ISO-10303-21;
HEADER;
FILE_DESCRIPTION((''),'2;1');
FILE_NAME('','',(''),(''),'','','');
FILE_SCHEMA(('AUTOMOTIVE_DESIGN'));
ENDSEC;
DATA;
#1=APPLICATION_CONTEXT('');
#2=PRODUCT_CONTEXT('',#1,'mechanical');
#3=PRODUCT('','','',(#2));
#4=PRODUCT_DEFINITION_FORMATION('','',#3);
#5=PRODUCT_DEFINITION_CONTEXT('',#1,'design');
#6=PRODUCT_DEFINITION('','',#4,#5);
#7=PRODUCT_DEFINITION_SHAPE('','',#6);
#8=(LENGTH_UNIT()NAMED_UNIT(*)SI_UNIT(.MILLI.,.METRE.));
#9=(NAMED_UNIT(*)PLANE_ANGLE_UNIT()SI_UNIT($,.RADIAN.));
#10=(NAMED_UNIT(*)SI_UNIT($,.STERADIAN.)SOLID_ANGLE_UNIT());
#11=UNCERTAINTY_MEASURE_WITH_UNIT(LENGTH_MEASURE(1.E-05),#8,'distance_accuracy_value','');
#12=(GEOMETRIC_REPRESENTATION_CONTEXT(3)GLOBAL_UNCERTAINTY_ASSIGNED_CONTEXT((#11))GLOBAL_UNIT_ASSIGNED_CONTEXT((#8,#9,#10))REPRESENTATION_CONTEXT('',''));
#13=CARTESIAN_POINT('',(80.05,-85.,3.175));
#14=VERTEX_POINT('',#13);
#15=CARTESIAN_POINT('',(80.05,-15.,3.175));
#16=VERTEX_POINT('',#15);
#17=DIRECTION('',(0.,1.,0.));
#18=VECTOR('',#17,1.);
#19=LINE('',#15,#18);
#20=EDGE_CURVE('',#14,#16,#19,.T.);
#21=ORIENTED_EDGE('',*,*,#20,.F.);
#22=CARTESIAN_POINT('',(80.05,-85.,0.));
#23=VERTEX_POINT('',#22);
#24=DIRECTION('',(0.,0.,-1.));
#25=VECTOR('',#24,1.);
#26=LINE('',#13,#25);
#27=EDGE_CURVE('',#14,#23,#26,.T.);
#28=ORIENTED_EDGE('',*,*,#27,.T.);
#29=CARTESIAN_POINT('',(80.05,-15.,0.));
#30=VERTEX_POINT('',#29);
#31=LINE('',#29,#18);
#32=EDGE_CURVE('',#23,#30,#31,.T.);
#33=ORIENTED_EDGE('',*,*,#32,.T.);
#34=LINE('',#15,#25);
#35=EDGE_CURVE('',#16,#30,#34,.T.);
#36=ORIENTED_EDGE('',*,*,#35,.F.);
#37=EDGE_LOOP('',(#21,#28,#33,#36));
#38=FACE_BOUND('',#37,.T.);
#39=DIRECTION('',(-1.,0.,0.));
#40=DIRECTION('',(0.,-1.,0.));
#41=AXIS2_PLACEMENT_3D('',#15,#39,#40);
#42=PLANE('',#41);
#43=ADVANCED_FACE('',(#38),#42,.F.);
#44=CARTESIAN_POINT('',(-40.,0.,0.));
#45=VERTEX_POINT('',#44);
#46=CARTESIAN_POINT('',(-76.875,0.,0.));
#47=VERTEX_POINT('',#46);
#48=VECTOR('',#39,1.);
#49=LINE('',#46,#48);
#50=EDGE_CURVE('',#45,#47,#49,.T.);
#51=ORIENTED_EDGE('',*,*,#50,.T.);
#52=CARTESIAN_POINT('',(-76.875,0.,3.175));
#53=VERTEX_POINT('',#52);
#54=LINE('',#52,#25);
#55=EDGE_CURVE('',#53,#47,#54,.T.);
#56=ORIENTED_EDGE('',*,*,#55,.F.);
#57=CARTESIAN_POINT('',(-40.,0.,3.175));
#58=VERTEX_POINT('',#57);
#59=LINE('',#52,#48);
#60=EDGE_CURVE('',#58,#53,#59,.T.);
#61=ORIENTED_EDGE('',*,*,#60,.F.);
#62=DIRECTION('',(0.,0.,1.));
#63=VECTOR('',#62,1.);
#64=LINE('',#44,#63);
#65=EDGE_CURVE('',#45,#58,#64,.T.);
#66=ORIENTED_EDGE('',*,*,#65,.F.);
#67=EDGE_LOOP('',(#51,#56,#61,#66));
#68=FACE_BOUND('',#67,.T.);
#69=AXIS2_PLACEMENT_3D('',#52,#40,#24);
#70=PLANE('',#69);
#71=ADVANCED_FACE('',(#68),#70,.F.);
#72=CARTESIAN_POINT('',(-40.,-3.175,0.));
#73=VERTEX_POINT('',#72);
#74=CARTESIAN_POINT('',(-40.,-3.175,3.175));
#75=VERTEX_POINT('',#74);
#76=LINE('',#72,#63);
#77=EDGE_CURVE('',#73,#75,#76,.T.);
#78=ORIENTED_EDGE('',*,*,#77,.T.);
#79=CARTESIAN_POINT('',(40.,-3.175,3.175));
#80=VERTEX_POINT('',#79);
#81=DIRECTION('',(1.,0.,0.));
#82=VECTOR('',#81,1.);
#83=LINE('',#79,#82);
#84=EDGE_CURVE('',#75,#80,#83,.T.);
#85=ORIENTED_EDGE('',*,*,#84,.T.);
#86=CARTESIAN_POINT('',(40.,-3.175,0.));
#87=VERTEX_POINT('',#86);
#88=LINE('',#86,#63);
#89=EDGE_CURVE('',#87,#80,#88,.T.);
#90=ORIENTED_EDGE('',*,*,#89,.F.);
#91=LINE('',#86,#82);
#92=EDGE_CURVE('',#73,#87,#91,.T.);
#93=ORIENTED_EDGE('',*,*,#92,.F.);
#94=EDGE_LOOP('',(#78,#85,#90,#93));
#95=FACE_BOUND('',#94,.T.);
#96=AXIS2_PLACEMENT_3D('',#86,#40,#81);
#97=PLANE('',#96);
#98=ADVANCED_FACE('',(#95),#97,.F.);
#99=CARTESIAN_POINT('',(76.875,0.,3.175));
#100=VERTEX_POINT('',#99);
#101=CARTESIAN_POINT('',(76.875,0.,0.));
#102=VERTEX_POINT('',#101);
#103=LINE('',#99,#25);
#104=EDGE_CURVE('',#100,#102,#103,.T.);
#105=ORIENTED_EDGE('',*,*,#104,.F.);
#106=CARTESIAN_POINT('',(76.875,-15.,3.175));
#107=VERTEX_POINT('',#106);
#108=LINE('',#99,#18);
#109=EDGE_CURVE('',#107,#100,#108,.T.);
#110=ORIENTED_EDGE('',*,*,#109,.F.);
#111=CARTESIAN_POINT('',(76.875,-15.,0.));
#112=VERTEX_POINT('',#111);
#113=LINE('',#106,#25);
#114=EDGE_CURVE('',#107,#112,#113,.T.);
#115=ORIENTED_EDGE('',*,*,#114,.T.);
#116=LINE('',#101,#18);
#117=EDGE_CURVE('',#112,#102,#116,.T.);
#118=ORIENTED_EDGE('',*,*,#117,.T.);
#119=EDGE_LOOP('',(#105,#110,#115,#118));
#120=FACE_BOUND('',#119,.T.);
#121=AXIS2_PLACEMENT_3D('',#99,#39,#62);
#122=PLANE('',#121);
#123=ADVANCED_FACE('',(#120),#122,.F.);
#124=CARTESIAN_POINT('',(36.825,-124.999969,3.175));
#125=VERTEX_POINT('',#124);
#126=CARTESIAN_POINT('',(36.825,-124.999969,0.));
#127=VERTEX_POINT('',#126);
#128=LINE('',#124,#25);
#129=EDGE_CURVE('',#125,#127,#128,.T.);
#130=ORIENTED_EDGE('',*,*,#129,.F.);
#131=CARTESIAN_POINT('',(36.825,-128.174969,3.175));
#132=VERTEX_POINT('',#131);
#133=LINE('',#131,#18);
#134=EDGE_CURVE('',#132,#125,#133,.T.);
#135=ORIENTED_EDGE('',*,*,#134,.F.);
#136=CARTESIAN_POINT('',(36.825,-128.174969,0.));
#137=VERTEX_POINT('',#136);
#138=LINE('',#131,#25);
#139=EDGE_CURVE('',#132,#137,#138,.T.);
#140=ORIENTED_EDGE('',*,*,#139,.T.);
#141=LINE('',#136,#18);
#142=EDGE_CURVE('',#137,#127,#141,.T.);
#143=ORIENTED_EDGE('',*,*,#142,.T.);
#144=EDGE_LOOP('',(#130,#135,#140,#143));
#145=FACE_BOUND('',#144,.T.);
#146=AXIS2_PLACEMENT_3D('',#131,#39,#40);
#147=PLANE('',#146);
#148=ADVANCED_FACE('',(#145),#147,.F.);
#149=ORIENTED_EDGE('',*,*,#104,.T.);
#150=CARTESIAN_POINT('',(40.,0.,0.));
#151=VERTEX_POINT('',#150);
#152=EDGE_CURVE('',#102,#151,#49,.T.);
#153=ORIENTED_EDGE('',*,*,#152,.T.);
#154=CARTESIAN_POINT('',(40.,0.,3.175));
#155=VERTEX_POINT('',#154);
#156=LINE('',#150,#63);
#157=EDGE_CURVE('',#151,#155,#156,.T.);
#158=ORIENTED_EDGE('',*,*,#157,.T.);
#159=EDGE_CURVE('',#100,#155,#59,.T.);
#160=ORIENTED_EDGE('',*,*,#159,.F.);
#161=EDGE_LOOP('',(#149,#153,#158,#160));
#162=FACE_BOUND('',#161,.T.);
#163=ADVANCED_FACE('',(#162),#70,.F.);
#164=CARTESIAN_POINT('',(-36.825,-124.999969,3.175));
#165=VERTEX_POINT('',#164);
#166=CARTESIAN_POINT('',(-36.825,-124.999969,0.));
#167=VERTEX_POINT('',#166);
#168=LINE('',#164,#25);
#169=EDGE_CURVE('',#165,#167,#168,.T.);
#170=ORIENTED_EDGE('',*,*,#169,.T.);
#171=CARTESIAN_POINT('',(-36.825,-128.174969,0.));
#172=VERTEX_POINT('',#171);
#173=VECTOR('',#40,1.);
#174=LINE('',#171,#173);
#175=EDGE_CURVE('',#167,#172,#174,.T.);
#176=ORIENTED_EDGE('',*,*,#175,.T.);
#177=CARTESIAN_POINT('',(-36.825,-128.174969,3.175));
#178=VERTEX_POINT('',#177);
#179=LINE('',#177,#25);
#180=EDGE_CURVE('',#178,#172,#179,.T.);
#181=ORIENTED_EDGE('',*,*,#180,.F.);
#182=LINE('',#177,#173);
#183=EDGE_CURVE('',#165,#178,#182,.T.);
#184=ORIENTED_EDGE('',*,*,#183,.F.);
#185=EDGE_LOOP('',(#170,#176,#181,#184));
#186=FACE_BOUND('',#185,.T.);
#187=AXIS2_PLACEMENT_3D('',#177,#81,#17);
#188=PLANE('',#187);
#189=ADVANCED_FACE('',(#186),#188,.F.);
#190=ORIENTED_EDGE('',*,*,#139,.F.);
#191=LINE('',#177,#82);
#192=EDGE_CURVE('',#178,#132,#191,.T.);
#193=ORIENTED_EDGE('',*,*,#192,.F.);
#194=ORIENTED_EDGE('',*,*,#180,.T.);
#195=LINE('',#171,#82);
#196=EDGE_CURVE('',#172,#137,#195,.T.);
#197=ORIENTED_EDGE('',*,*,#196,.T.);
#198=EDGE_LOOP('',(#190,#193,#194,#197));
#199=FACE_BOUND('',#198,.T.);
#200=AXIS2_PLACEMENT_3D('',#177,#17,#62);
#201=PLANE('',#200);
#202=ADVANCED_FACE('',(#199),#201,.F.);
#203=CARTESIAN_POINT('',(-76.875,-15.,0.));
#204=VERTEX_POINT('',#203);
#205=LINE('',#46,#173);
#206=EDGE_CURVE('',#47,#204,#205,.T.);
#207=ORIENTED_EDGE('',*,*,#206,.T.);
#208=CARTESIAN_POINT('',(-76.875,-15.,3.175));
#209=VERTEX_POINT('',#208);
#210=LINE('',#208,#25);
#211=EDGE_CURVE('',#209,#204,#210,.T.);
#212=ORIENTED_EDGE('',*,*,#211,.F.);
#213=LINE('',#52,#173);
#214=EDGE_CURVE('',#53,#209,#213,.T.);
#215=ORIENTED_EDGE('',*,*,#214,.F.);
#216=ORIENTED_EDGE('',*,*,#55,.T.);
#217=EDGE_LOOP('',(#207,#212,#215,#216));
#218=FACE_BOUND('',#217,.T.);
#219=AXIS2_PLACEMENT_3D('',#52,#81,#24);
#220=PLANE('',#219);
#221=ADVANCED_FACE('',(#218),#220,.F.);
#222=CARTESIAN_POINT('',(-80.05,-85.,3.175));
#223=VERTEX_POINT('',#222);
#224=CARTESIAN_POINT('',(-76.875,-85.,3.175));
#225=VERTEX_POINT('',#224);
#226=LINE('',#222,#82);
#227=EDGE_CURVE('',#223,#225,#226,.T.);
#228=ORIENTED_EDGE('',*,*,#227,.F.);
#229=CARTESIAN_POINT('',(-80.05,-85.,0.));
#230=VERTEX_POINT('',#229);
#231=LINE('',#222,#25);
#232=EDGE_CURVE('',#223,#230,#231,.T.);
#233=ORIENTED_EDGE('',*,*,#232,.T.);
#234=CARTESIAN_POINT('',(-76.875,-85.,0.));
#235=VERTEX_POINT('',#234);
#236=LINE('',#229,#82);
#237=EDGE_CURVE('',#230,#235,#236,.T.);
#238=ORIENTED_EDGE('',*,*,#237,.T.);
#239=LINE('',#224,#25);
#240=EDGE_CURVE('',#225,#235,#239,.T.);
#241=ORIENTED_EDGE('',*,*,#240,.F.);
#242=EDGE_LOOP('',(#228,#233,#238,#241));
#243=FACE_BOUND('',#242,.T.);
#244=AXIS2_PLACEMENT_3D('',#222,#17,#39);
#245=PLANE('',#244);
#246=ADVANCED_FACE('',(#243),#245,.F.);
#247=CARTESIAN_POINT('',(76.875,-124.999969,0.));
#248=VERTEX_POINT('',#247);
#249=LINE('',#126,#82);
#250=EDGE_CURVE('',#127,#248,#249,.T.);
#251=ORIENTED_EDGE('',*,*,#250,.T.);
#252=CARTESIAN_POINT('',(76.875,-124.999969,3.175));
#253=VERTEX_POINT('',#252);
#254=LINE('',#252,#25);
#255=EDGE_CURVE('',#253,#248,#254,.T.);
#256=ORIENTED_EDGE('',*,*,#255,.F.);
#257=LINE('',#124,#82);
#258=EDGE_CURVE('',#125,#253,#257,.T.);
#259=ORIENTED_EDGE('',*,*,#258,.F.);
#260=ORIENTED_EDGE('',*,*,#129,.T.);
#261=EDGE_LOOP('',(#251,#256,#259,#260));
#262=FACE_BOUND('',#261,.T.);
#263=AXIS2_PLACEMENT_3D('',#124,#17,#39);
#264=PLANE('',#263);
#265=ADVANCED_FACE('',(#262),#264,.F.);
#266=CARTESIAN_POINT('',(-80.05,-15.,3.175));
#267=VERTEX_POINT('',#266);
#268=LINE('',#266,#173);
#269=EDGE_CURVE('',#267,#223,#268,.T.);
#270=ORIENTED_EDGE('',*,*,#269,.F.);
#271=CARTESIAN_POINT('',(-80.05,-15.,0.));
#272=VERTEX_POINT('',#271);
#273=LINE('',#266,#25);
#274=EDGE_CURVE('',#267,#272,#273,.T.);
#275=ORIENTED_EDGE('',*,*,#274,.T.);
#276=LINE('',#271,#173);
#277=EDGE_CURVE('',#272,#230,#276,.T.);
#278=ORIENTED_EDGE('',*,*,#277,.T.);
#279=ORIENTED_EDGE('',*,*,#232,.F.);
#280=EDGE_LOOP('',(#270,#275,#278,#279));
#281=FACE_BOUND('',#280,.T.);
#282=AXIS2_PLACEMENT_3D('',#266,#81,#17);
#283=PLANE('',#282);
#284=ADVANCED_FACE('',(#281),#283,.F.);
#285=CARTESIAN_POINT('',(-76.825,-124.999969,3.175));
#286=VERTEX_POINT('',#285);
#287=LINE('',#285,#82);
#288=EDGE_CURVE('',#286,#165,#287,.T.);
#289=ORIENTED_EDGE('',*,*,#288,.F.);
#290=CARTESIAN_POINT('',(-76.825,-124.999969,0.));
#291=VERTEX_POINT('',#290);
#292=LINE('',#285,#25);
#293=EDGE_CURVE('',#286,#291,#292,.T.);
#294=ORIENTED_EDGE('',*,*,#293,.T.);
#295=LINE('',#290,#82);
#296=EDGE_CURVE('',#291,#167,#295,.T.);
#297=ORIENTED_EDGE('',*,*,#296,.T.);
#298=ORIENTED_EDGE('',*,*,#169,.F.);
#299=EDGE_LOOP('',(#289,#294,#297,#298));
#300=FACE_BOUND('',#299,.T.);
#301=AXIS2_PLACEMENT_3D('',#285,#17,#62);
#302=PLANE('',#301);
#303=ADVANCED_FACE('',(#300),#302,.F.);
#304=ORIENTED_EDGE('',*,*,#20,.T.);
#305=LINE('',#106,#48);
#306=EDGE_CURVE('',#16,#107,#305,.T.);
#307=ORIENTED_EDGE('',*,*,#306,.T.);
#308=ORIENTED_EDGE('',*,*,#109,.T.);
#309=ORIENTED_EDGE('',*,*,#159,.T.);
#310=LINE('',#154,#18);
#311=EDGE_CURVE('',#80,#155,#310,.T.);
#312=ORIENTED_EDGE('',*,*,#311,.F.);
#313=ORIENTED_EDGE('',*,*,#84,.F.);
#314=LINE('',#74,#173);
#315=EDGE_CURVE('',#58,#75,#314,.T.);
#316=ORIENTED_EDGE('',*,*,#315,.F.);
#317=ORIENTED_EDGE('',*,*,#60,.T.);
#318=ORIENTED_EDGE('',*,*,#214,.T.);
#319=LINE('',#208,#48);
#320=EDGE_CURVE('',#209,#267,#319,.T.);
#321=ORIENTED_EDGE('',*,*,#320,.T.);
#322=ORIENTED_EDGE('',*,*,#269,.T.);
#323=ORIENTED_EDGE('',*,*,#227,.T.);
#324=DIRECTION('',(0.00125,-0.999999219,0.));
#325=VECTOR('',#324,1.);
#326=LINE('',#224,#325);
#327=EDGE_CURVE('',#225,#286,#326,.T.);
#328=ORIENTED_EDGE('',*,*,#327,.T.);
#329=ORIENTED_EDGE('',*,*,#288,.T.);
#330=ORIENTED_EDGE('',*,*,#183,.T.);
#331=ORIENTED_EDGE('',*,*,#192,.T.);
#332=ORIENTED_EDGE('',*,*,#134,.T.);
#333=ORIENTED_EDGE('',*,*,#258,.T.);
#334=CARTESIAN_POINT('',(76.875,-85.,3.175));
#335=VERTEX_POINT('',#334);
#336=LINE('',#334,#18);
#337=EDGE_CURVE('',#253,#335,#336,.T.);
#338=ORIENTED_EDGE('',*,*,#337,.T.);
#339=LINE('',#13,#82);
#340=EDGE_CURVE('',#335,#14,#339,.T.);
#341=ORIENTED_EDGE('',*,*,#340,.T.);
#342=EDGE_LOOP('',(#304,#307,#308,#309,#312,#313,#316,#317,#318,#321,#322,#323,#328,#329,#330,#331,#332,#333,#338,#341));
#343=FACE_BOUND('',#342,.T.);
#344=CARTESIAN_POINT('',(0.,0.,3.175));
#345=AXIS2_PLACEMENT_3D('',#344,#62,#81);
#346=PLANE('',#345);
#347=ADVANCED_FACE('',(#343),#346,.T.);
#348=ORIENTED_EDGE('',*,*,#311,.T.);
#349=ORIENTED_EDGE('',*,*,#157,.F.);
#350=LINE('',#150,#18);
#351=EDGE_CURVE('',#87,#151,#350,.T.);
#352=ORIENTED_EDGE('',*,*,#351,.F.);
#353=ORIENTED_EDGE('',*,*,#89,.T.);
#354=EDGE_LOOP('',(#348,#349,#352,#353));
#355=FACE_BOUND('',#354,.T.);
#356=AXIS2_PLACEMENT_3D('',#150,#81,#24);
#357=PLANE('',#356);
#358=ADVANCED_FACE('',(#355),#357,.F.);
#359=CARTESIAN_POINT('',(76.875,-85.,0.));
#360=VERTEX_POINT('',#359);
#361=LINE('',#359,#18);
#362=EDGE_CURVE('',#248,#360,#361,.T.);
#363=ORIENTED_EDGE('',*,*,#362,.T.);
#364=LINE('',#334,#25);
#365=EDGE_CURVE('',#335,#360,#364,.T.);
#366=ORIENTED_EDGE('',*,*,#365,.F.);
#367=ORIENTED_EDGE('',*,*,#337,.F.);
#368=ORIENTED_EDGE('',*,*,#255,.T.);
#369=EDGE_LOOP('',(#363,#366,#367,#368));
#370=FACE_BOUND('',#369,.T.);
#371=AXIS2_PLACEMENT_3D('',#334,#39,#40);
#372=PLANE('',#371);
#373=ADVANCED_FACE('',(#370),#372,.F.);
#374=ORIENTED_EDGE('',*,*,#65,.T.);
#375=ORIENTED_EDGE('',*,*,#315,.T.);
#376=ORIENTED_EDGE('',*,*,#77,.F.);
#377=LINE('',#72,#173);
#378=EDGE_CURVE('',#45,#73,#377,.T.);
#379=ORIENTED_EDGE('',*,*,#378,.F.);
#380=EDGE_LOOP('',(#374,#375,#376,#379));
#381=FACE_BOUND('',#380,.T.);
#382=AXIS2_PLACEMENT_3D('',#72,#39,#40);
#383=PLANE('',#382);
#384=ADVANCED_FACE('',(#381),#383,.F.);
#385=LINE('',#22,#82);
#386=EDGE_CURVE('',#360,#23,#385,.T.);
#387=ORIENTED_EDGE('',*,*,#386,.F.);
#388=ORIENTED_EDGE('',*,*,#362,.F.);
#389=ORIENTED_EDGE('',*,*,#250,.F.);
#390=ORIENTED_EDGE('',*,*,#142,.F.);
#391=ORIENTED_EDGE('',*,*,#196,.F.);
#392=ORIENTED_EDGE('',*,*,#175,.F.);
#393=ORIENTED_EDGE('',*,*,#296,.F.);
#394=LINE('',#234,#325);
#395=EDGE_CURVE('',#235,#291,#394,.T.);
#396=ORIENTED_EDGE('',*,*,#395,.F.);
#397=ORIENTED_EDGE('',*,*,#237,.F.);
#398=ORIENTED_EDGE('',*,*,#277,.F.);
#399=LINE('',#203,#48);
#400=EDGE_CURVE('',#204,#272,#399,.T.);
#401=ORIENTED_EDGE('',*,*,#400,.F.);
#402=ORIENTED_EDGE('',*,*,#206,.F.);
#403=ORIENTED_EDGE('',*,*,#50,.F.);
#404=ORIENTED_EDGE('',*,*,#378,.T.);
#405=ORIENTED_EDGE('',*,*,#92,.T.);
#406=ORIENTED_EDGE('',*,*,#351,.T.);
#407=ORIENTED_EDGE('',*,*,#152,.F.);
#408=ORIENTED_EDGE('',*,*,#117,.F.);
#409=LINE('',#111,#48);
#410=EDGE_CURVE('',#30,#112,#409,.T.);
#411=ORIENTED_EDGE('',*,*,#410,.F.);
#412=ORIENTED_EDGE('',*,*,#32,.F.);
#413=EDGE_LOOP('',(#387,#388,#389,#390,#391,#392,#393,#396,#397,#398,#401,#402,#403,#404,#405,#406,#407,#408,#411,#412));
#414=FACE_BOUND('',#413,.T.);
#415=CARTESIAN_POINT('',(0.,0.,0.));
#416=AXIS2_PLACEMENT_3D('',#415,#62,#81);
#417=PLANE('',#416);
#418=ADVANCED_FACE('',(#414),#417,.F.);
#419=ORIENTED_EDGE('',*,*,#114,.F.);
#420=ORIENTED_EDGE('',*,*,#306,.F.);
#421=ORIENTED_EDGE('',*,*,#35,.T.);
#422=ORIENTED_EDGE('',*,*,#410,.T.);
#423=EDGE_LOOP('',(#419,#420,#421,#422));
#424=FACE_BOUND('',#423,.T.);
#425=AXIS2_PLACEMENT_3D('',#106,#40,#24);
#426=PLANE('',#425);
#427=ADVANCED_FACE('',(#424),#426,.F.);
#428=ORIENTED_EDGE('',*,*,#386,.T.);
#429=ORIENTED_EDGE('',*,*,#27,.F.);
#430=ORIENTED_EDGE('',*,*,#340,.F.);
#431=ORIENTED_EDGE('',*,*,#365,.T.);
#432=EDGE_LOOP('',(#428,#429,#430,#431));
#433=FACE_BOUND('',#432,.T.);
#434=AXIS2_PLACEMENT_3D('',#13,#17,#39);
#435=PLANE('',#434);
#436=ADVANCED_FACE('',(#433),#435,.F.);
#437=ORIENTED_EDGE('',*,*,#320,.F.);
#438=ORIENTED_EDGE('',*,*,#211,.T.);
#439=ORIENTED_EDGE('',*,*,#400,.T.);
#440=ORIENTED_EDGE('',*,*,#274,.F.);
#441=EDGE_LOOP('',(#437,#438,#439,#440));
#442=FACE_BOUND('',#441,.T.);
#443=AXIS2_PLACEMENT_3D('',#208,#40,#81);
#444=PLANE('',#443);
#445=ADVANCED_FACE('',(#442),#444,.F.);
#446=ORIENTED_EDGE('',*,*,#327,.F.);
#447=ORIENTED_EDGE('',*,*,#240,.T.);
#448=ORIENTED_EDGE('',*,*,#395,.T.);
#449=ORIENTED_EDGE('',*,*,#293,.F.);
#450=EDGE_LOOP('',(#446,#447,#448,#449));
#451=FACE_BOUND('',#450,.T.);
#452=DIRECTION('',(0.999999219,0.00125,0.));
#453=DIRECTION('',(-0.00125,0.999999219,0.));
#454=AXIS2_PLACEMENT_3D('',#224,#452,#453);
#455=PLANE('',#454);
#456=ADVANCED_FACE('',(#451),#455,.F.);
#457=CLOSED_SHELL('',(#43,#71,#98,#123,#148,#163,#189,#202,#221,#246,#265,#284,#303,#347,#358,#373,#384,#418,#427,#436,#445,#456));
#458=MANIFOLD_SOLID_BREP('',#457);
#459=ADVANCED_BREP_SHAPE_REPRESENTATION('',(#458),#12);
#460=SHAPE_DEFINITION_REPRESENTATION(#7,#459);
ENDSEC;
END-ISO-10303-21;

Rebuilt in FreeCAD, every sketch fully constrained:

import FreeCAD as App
import Part
import Sketcher
Q = App.Units.Quantity

doc = App.newDocument("Part")
body = doc.addObject("PartDesign::Body", "Body")

sketch1 = body.newObject("Sketcher::SketchObject", "Sketch")
sketch1.AttachmentSupport = (doc.getObject("XY_Plane"), [""])
sketch1.MapMode = "FlatFace"
sketch1.addGeometry([
    Part.LineSegment(App.Vector(76.9, 0, 0), App.Vector(-76.9, 0, 0)),
    Part.LineSegment(App.Vector(-76.9, 0, 0), App.Vector(-76.9, -15, 0)),
    Part.LineSegment(App.Vector(-76.9, -15, 0), App.Vector(-80, -15, 0)),
    Part.LineSegment(App.Vector(-80, -15, 0), App.Vector(-80, -85, 0)),
    Part.LineSegment(App.Vector(-80, -85, 0), App.Vector(-76.9, -85, 0)),
    Part.LineSegment(App.Vector(-76.9, -85, 0), App.Vector(-76.8, -125, 0)),
    Part.LineSegment(App.Vector(-76.8, -125, 0), App.Vector(-36.8, -125, 0)),
    Part.LineSegment(App.Vector(-36.8, -125, 0), App.Vector(-36.8, -128.2, 0)),
    Part.LineSegment(App.Vector(-36.8, -128.2, 0), App.Vector(36.8, -128.2, 0)),
    Part.LineSegment(App.Vector(36.8, -128.2, 0), App.Vector(36.8, -125, 0)),
    Part.LineSegment(App.Vector(36.8, -125, 0), App.Vector(76.9, -125, 0)),
    Part.LineSegment(App.Vector(76.9, -125, 0), App.Vector(76.9, -85, 0)),
    Part.LineSegment(App.Vector(76.9, -85, 0), App.Vector(80, -85, 0)),
    Part.LineSegment(App.Vector(80, -85, 0), App.Vector(80, -15, 0)),
    Part.LineSegment(App.Vector(80, -15, 0), App.Vector(76.9, -15, 0)),
    Part.LineSegment(App.Vector(76.9, -15, 0), App.Vector(76.9, 0, 0)),
], False)
sketch1.addConstraint([
    Sketcher.Constraint("Coincident", 0, 2, 1, 1),
    Sketcher.Constraint("Coincident", 1, 2, 2, 1),
    Sketcher.Constraint("Coincident", 2, 2, 3, 1),
    Sketcher.Constraint("Coincident", 3, 2, 4, 1),
    Sketcher.Constraint("Coincident", 4, 2, 5, 1),
    Sketcher.Constraint("Coincident", 5, 2, 6, 1),
    Sketcher.Constraint("Coincident", 6, 2, 7, 1),
    Sketcher.Constraint("Coincident", 7, 2, 8, 1),
    Sketcher.Constraint("Coincident", 8, 2, 9, 1),
    Sketcher.Constraint("Coincident", 9, 2, 10, 1),
    Sketcher.Constraint("Coincident", 10, 2, 11, 1),
    Sketcher.Constraint("Coincident", 11, 2, 12, 1),
    Sketcher.Constraint("Coincident", 12, 2, 13, 1),
    Sketcher.Constraint("Coincident", 13, 2, 14, 1),
    Sketcher.Constraint("Coincident", 14, 2, 15, 1),
    Sketcher.Constraint("Coincident", 15, 2, 0, 1),
    Sketcher.Constraint("Horizontal", 0),
    Sketcher.Constraint("Vertical", 1),
    Sketcher.Constraint("Horizontal", 2),
    Sketcher.Constraint("Vertical", 3),
    Sketcher.Constraint("Horizontal", 4),
    Sketcher.Constraint("Horizontal", 6),
    Sketcher.Constraint("Vertical", 7),
    Sketcher.Constraint("Horizontal", 8),
    Sketcher.Constraint("Vertical", 9),
    Sketcher.Constraint("Horizontal", 10),
    Sketcher.Constraint("Vertical", 11),
    Sketcher.Constraint("Horizontal", 12),
    Sketcher.Constraint("Vertical", 13),
    Sketcher.Constraint("Horizontal", 14),
    Sketcher.Constraint("Vertical", 15),
    Sketcher.Constraint("Symmetric", 0, 2, 15, 2, -1, 1),
    Sketcher.Constraint("Symmetric", 6, 2, 9, 2, -2),
    Sketcher.Constraint("Symmetric", 4, 2, 11, 2, -2),
    Sketcher.Constraint("Symmetric", 2, 2, 13, 2, -2),
    Sketcher.Constraint("Vertical", 1, 2, 4, 2),
    Sketcher.Constraint("Equal", 14, 7),
    Sketcher.Constraint("DistanceX", 6, 1, 6, 2, Q("40 mm")),
    Sketcher.Constraint("DistanceY", 1, 2, 1, 1, Q("15 mm")),
    Sketcher.Constraint("DistanceY", 3, 2, 3, 1, Q("70 mm")),
    Sketcher.Constraint("Distance", 5, Q("40 mm")),
    Sketcher.Constraint("DistanceX", 0, 2, 0, 1, Q("153.75 mm")),
    Sketcher.Constraint("DistanceX", 8, 1, 8, 2, Q("73.65 mm")),
    Sketcher.Constraint("DistanceX", 2, 2, 2, 1, Q("3.175 mm")),
])
pad1 = body.newObject("PartDesign::Pad", "Pad")
pad1.Profile = sketch1
pad1.Length = 3.175

sketch2 = body.newObject("Sketcher::SketchObject", "Sketch001")
sketch2.AttachmentSupport = (doc.getObject("XY_Plane"), [""])
sketch2.MapMode = "FlatFace"
sketch2.AttachmentOffset = App.Placement(App.Vector(0, 0, 3.175), App.Rotation())
sketch2.addGeometry([
    Part.LineSegment(App.Vector(-40, 0, 0), App.Vector(-40, -3.2, 0)),
    Part.LineSegment(App.Vector(-40, -3.2, 0), App.Vector(40, -3.2, 0)),
    Part.LineSegment(App.Vector(40, -3.2, 0), App.Vector(40, 0, 0)),
    Part.LineSegment(App.Vector(40, 0, 0), App.Vector(-40, 0, 0)),
], False)
sketch2.addConstraint([
    Sketcher.Constraint("Coincident", 0, 2, 1, 1),
    Sketcher.Constraint("Coincident", 1, 2, 2, 1),
    Sketcher.Constraint("Coincident", 2, 2, 3, 1),
    Sketcher.Constraint("Coincident", 3, 2, 0, 1),
    Sketcher.Constraint("Vertical", 0),
    Sketcher.Constraint("Horizontal", 1),
    Sketcher.Constraint("Vertical", 2),
    Sketcher.Constraint("Horizontal", 3),
    Sketcher.Constraint("Symmetric", 2, 2, 3, 2, -1, 1),
    Sketcher.Constraint("DistanceX", 1, 1, 1, 2, Q("80 mm")),
    Sketcher.Constraint("DistanceY", 0, 2, 0, 1, Q("3.175 mm")),
])
pocket1 = body.newObject("PartDesign::Pocket", "Pocket")
pocket1.Profile = sketch2
pocket1.Type = "ThroughAll"

doc.recompute()
